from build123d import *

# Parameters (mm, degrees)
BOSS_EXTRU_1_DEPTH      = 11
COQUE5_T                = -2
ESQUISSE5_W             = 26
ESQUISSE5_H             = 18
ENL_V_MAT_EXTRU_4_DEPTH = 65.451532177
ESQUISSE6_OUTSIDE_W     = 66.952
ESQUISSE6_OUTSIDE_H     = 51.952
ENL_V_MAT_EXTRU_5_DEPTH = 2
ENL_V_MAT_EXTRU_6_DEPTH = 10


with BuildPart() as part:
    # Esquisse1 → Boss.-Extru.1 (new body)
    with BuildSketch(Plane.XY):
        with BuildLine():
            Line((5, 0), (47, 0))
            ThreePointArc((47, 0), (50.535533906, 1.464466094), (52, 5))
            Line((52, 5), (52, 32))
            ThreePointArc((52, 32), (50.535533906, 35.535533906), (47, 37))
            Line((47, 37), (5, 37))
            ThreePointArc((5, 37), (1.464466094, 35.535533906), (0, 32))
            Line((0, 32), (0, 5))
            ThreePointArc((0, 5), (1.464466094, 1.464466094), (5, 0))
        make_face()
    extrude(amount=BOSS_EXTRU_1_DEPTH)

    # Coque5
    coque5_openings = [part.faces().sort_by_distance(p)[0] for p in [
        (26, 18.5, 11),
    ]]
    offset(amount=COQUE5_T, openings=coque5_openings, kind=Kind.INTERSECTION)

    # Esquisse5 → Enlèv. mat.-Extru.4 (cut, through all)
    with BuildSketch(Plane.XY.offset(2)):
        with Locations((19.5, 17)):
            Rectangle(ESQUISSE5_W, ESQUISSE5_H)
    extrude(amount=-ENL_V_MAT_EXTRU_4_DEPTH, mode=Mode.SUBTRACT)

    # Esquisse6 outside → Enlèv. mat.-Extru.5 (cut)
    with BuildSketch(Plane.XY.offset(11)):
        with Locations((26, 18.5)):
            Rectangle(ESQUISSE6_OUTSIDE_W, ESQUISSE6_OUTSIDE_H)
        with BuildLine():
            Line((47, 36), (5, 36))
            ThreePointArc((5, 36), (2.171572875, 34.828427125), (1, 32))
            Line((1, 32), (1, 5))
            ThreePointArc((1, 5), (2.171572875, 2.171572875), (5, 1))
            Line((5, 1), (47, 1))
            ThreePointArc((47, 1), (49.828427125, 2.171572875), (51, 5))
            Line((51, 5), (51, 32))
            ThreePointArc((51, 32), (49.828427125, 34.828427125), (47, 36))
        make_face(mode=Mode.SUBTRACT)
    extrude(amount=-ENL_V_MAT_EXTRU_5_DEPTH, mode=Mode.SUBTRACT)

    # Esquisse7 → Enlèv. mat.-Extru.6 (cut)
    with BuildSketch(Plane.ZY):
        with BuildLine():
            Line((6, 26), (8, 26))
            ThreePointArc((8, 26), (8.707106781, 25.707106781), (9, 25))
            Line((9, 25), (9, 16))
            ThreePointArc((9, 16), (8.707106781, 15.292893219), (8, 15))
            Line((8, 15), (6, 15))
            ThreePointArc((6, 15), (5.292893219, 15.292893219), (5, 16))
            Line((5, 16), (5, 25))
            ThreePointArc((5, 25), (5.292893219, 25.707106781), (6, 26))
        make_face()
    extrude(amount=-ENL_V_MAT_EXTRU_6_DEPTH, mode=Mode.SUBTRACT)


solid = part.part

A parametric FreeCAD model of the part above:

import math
import FreeCAD as App
import Part
import Sketcher
from FreeCAD import Vector


def faces_at(feature, points):
    """Names of the faces that lie closest to the given points."""
    faces = feature.Shape.Faces
    near = lambda p: min(range(len(faces)), key=lambda i: faces[i].distToShape(Part.Vertex(*p))[0])
    return sorted({f"Face{near(p) + 1}" for p in points})


def add_polygon(sketch, points):
    """Adds a closed chain of lines whose ends are joined by coincident constraints."""
    first, n = sketch.GeometryCount, len(points)
    for a, b in zip(points, points[1:] + points[:1]):
        sketch.addGeometry(Part.LineSegment(App.Vector(*a, 0), App.Vector(*b, 0)), False)
    for i in range(n):
        sketch.addConstraint(Sketcher.Constraint("Coincident", first + i, 2, first + (i + 1) % n, 1))

doc = App.newDocument("Part")
body = doc.addObject("PartDesign::Body", "Body")

# Sketch on XY plane
sketch1 = body.newObject("Sketcher::SketchObject", "Sketch")
sketch1.AttachmentSupport = (doc.getObject("XY_Plane"), [""])
sketch1.MapMode = "FlatFace"
sketch1.addGeometry(Part.LineSegment(Vector(5, 0, 0), Vector(47, 0, 0)), False)
sketch1.addGeometry(Part.ArcOfCircle(Part.Circle(Vector(47, 5, 0), Vector(0, 0, 1), 5), math.radians(-90), math.radians(0)), False)
sketch1.addGeometry(Part.LineSegment(Vector(52, 5, 0), Vector(52, 32, 0)), False)
sketch1.addGeometry(Part.ArcOfCircle(Part.Circle(Vector(47, 32, 0), Vector(0, 0, 1), 5), math.radians(0), math.radians(90)), False)
sketch1.addGeometry(Part.LineSegment(Vector(47, 37, 0), Vector(5, 37, 0)), False)
sketch1.addGeometry(Part.ArcOfCircle(Part.Circle(Vector(5, 32, 0), Vector(0, 0, 1), 5), math.radians(90), math.radians(180)), False)
sketch1.addGeometry(Part.LineSegment(Vector(0, 32, 0), Vector(0, 5, 0)), False)
sketch1.addGeometry(Part.ArcOfCircle(Part.Circle(Vector(5, 5, 0), Vector(0, 0, 1), 5), math.radians(180), math.radians(270)), False)
sketch1.addConstraint(Sketcher.Constraint("Tangent", 0, 2, 1, 1))
sketch1.addConstraint(Sketcher.Constraint("Tangent", 1, 2, 2, 1))
sketch1.addConstraint(Sketcher.Constraint("Tangent", 2, 2, 3, 1))
sketch1.addConstraint(Sketcher.Constraint("Tangent", 3, 2, 4, 1))
sketch1.addConstraint(Sketcher.Constraint("Tangent", 4, 2, 5, 1))
sketch1.addConstraint(Sketcher.Constraint("Tangent", 5, 2, 6, 1))
sketch1.addConstraint(Sketcher.Constraint("Tangent", 6, 2, 7, 1))
sketch1.addConstraint(Sketcher.Constraint("Tangent", 7, 2, 0, 1))
sketch1.addConstraint(Sketcher.Constraint("Horizontal", 0))
sketch1.addConstraint(Sketcher.Constraint("Vertical", 2))
sketch1.addConstraint(Sketcher.Constraint("Horizontal", 4))
sketch1.addConstraint(Sketcher.Constraint("Vertical", 6))
sketch1.addConstraint(Sketcher.Constraint("Equal", 1, 3))
sketch1.addConstraint(Sketcher.Constraint("Equal", 3, 5))
sketch1.addConstraint(Sketcher.Constraint("Equal", 5, 7))
sketch1.addConstraint(Sketcher.Constraint("PointOnObject", 0, 2, -1))
sketch1.addConstraint(Sketcher.Constraint("PointOnObject", 5, 2, -2))
sketch1.addConstraint(Sketcher.Constraint("Radius", 1, 5.0))
sketch1.addConstraint(Sketcher.Constraint("DistanceX", 0, 1, 0, 2, 42.0))
sketch1.addConstraint(Sketcher.Constraint("DistanceY", 2, 1, 2, 2, 27.0))
pad1 = body.newObject("PartDesign::Pad", "Pad")
pad1.Profile = sketch1
pad1.Length = 11
doc.recompute()

thickness = body.newObject("PartDesign::Thickness", "Thickness")
thickness.Base = (pad1, faces_at(pad1, [(26, 18.5, 11)]))
thickness.Value = 2
thickness.Reversed = True
thickness.Join = "Intersection"

# Sketch on XY plane
sketch2 = body.newObject("Sketcher::SketchObject", "Sketch001")
sketch2.AttachmentSupport = (doc.getObject("XY_Plane"), [""])
sketch2.MapMode = "FlatFace"
sketch2.AttachmentOffset = App.Placement(Vector(0, 0, 2), App.Rotation())
add_polygon(sketch2, [(6, 26), (6, 8), (32, 8), (32, 26)])  # lines 0-3
sketch2.addConstraint(Sketcher.Constraint("Vertical", 0))
sketch2.addConstraint(Sketcher.Constraint("Horizontal", 1))
sketch2.addConstraint(Sketcher.Constraint("Vertical", 2))
sketch2.addConstraint(Sketcher.Constraint("Horizontal", 3))
sketch2.addConstraint(Sketcher.Constraint("DistanceX", 1, 1, 1, 2, 26.0))
sketch2.addConstraint(Sketcher.Constraint("DistanceY", 0, 2, 0, 1, 18.0))
sketch2.addConstraint(Sketcher.Constraint("DistanceY", -1, 1, 0, 2, 8.0))
sketch2.addConstraint(Sketcher.Constraint("DistanceX", -1, 1, 0, 2, 6.5))
pocket1 = body.newObject("PartDesign::Pocket", "Pocket")
pocket1.Profile = sketch2
pocket1.Type = "ThroughAll"

# Sketch on XY plane
sketch3 = body.newObject("Sketcher::SketchObject", "Sketch002")
sketch3.AttachmentSupport = (doc.getObject("XY_Plane"), [""])
sketch3.MapMode = "FlatFace"
sketch3.AttachmentOffset = App.Placement(Vector(0, 0, 11), App.Rotation())
add_polygon(sketch3, [(-7.5, 44.5), (-7.5, -7.5), (59.5, -7.5), (59.5, 44.5)])  # lines 0-3
sketch3.addGeometry(Part.LineSegment(Vector(5, 36, 0), Vector(47, 36, 0)), False)  # 4
sketch3.addGeometry(Part.ArcOfCircle(Part.Circle(Vector(47, 32, 0), Vector(0, 0, 1), 4), math.radians(0), math.radians(90)), False)  # 5
sketch3.addGeometry(Part.LineSegment(Vector(51, 32, 0), Vector(51, 5, 0)), False)  # 6
sketch3.addGeometry(Part.ArcOfCircle(Part.Circle(Vector(47, 5, 0), Vector(0, 0, 1), 4), math.radians(-90), math.radians(0)), False)  # 7
sketch3.addGeometry(Part.LineSegment(Vector(47, 1, 0), Vector(5, 1, 0)), False)  # 8
sketch3.addGeometry(Part.ArcOfCircle(Part.Circle(Vector(5, 5, 0), Vector(0, 0, 1), 4), math.radians(180), math.radians(270)), False)  # 9
sketch3.addGeometry(Part.LineSegment(Vector(1, 5, 0), Vector(1, 32, 0)), False)  # 10
sketch3.addGeometry(Part.ArcOfCircle(Part.Circle(Vector(5, 32, 0), Vector(0, 0, 1), 4), math.radians(90), math.radians(180)), False)  # 11
sketch3.addConstraint(Sketcher.Constraint("Tangent", 4, 2, 5, 2))
sketch3.addConstraint(Sketcher.Constraint("Tangent", 5, 1, 6, 1))
sketch3.addConstraint(Sketcher.Constraint("Tangent", 6, 2, 7, 2))
sketch3.addConstraint(Sketcher.Constraint("Tangent", 7, 1, 8, 1))
sketch3.addConstraint(Sketcher.Constraint("Tangent", 8, 2, 9, 2))
sketch3.addConstraint(Sketcher.Constraint("Tangent", 9, 1, 10, 1))
sketch3.addConstraint(Sketcher.Constraint("Tangent", 10, 2, 11, 2))
sketch3.addConstraint(Sketcher.Constraint("Tangent", 11, 1, 4, 1))
sketch3.addConstraint(Sketcher.Constraint("Vertical", 0))
sketch3.addConstraint(Sketcher.Constraint("Horizontal", 1))
sketch3.addConstraint(Sketcher.Constraint("Vertical", 2))
sketch3.addConstraint(Sketcher.Constraint("Horizontal", 3))
sketch3.addConstraint(Sketcher.Constraint("Horizontal", 4))
sketch3.addConstraint(Sketcher.Constraint("Vertical", 6))
sketch3.addConstraint(Sketcher.Constraint("Horizontal", 8))
sketch3.addConstraint(Sketcher.Constraint("Vertical", 10))
sketch3.addConstraint(Sketcher.Constraint("Equal", 5, 7))
sketch3.addConstraint(Sketcher.Constraint("Equal", 7, 9))
sketch3.addConstraint(Sketcher.Constraint("Equal", 9, 11))
sketch3.addConstraint(Sketcher.Constraint("Radius", 5, 4.0))
sketch3.addConstraint(Sketcher.Constraint("DistanceX", 4, 1, 4, 2, 42.0))
sketch3.addConstraint(Sketcher.Constraint("DistanceY", 6, 2, 6, 1, 27.0))
sketch3.addConstraint(Sketcher.Constraint("DistanceX", -1, 1, 5, 3, 47.0))
sketch3.addConstraint(Sketcher.Constraint("DistanceY", -1, 1, 5, 3, 32.0))
sketch3.addConstraint(Sketcher.Constraint("DistanceX", 1, 1, 1, 2, 66.952))
sketch3.addConstraint(Sketcher.Constraint("DistanceY", 0, 2, 0, 1, 51.952))
sketch3.addConstraint(Sketcher.Constraint("DistanceX", 0, 2, -1, 1, 7.476))
sketch3.addConstraint(Sketcher.Constraint("DistanceY", 0, 2, -1, 1, 7.476))
pocket2 = body.newObject("PartDesign::Pocket", "Pocket001")
pocket2.Profile = sketch3
pocket2.Length = 2

# Sketch on YZ plane
sketch4 = body.newObject("Sketcher::SketchObject", "Sketch003")
sketch4.AttachmentSupport = (doc.getObject("YZ_Plane"), [""])
sketch4.MapMode = "FlatFace"
sketch4.addGeometry(Part.LineSegment(Vector(26, 8, 0), Vector(26, 6, 0)), False)
sketch4.addGeometry(Part.ArcOfCircle(Part.Circle(Vector(25, 6, 0), Vector(0, 0, 1), 1), math.radians(-90), math.radians(0)), False)
sketch4.addGeometry(Part.LineSegment(Vector(25, 5, 0), Vector(16, 5, 0)), False)
sketch4.addGeometry(Part.ArcOfCircle(Part.Circle(Vector(16, 6, 0), Vector(0, 0, 1), 1), math.radians(-180), math.radians(-90)), False)
sketch4.addGeometry(Part.LineSegment(Vector(15, 6, 0), Vector(15, 8, 0)), False)
sketch4.addGeometry(Part.ArcOfCircle(Part.Circle(Vector(16, 8, 0), Vector(0, 0, 1), 1), math.radians(90), math.radians(180)), False)
sketch4.addGeometry(Part.LineSegment(Vector(16, 9, 0), Vector(25, 9, 0)), False)
sketch4.addGeometry(Part.ArcOfCircle(Part.Circle(Vector(25, 8, 0), Vector(0, 0, 1), 1), math.radians(0), math.radians(90)), False)
sketch4.addConstraint(Sketcher.Constraint("Tangent", 0, 2, 1, 2))
sketch4.addConstraint(Sketcher.Constraint("Tangent", 1, 1, 2, 1))
sketch4.addConstraint(Sketcher.Constraint("Tangent", 2, 2, 3, 2))
sketch4.addConstraint(Sketcher.Constraint("Tangent", 3, 1, 4, 1))
sketch4.addConstraint(Sketcher.Constraint("Tangent", 4, 2, 5, 2))
sketch4.addConstraint(Sketcher.Constraint("Tangent", 5, 1, 6, 1))
sketch4.addConstraint(Sketcher.Constraint("Tangent", 6, 2, 7, 2))
sketch4.addConstraint(Sketcher.Constraint("Tangent", 7, 1, 0, 1))
sketch4.addConstraint(Sketcher.Constraint("Vertical", 0))
sketch4.addConstraint(Sketcher.Constraint("Horizontal", 2))
sketch4.addConstraint(Sketcher.Constraint("Vertical", 4))
sketch4.addConstraint(Sketcher.Constraint("Horizontal", 6))
sketch4.addConstraint(Sketcher.Constraint("Equal", 1, 3))
sketch4.addConstraint(Sketcher.Constraint("Equal", 3, 5))
sketch4.addConstraint(Sketcher.Constraint("Equal", 5, 7))
sketch4.addConstraint(Sketcher.Constraint("Radius", 1, 1.0))
sketch4.addConstraint(Sketcher.Constraint("DistanceX", 2, 2, 2, 1, 9.0))
sketch4.addConstraint(Sketcher.Constraint("DistanceY", 0, 2, 0, 1, 2.0))
sketch4.addConstraint(Sketcher.Constraint("DistanceX", -1, 1, 1, 3, 25.0))
sketch4.addConstraint(Sketcher.Constraint("DistanceY", -1, 1, 1, 3, 6.0))
pocket3 = body.newObject("PartDesign::Pocket", "Pocket002")
pocket3.Profile = sketch4
pocket3.Length = 10
pocket3.Reversed = True

doc.recompute()
